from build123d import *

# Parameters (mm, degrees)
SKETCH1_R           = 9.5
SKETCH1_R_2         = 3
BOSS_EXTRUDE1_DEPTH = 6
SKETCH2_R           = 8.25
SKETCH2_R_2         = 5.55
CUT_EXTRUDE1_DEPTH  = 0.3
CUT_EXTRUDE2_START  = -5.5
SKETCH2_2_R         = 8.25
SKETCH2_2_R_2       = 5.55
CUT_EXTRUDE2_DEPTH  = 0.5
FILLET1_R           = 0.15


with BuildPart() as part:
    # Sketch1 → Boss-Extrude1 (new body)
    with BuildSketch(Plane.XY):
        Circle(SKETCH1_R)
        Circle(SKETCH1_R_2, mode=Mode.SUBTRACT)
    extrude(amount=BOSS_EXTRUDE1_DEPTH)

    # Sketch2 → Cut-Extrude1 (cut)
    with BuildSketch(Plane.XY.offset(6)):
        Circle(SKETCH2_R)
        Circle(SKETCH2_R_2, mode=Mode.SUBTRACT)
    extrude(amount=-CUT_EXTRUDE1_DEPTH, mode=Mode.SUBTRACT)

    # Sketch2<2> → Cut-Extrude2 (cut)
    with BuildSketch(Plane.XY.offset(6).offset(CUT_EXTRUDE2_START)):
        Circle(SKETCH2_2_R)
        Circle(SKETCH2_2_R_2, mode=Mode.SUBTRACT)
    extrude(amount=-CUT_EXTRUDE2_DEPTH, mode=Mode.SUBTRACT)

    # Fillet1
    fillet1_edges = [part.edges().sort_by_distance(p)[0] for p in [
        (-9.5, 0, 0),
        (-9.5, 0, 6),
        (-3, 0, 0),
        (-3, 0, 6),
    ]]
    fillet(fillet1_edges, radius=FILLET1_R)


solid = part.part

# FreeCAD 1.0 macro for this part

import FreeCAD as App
import Part
import Sketcher

V = App.Vector
Q = App.Units.Quantity


def edges_at(feature, points):
    """Names of the edges that pass closest to the given points."""
    edges = feature.Shape.Edges
    near = lambda p: min(range(len(edges)), key=lambda i: edges[i].distToShape(Part.Vertex(*p))[0])
    return sorted({f"Edge{near(p) + 1}" for p in points})

doc = App.newDocument("Part")
body = doc.addObject("PartDesign::Body", "Body")

# Sketch on XY plane
sketch1 = doc.addObject("Sketcher::SketchObject", "Sketch")
body.addObject(sketch1)
sketch1.AttachmentSupport = (doc.XY_Plane, [""])
sketch1.MapMode = "FlatFace"
sketch1.addGeometry([
    Part.Circle(V(0, 0, 0), V(0, 0, 1), 9.5),
    Part.Circle(V(0, 0, 0), V(0, 0, 1), 3),
], False)
sketch1.addConstraint([
    Sketcher.Constraint("Coincident", 0, 3, -1, 1),
    Sketcher.Constraint("Coincident", 1, 3, -1, 1),
    Sketcher.Constraint("Diameter", 0, Q("19 mm")),
    Sketcher.Constraint("Diameter", 1, Q("6 mm")),
])
pad1 = doc.addObject("PartDesign::Pad", "Pad")
body.addObject(pad1)
pad1.Profile = sketch1
pad1.Length = 6

# Sketch on XY plane
sketch2 = doc.addObject("Sketcher::SketchObject", "Sketch001")
body.addObject(sketch2)
sketch2.AttachmentSupport = (doc.XY_Plane, [""])
sketch2.MapMode = "FlatFace"
sketch2.AttachmentOffset = App.Placement(V(0, 0, 6), App.Rotation())
sketch2.addGeometry([
    Part.Circle(V(0, 0, 0), V(0, 0, 1), 8),
    Part.Circle(V(0, 0, 0), V(0, 0, 1), 6),
], False)
sketch2.addConstraint([
    Sketcher.Constraint("Coincident", 0, 3, -1, 1),
    Sketcher.Constraint("Coincident", 1, 3, -1, 1),
    Sketcher.Constraint("Diameter", 0, Q("16.5 mm")),
    Sketcher.Constraint("Diameter", 1, Q("11.1 mm")),
])
pocket1 = doc.addObject("PartDesign::Pocket", "Pocket")
body.addObject(pocket1)
pocket1.Profile = sketch2
pocket1.Length = 0.3

# Sketch on XY plane
sketch3 = doc.addObject("Sketcher::SketchObject", "Sketch002")
body.addObject(sketch3)
sketch3.AttachmentSupport = (doc.XY_Plane, [""])
sketch3.MapMode = "FlatFace"
sketch3.AttachmentOffset = App.Placement(V(0, 0, 0.5), App.Rotation())
sketch3.addGeometry([
    Part.Circle(V(0, 0, 0), V(0, 0, 1), 8),
    Part.Circle(V(0, 0, 0), V(0, 0, 1), 6),
], False)
sketch3.addConstraint([
    Sketcher.Constraint("Coincident", 0, 3, -1, 1),
    Sketcher.Constraint("Coincident", 1, 3, -1, 1),
    Sketcher.Constraint("Diameter", 0, Q("16.5 mm")),
    Sketcher.Constraint("Diameter", 1, Q("11.1 mm")),
])
pocket2 = doc.addObject("PartDesign::Pocket", "Pocket001")
body.addObject(pocket2)
pocket2.Profile = sketch3
pocket2.Length = 0.5
doc.recompute()

fillet = doc.addObject("PartDesign::Fillet", "Fillet")
body.addObject(fillet)
fillet.Base = (pocket2, edges_at(pocket2, [
    (-9.5, 0, 0),
    (-9.5, 0, 6),
    (-3, 0, 0),
    (-3, 0, 6),
]))
fillet.Radius = 0.15

doc.recompute()
